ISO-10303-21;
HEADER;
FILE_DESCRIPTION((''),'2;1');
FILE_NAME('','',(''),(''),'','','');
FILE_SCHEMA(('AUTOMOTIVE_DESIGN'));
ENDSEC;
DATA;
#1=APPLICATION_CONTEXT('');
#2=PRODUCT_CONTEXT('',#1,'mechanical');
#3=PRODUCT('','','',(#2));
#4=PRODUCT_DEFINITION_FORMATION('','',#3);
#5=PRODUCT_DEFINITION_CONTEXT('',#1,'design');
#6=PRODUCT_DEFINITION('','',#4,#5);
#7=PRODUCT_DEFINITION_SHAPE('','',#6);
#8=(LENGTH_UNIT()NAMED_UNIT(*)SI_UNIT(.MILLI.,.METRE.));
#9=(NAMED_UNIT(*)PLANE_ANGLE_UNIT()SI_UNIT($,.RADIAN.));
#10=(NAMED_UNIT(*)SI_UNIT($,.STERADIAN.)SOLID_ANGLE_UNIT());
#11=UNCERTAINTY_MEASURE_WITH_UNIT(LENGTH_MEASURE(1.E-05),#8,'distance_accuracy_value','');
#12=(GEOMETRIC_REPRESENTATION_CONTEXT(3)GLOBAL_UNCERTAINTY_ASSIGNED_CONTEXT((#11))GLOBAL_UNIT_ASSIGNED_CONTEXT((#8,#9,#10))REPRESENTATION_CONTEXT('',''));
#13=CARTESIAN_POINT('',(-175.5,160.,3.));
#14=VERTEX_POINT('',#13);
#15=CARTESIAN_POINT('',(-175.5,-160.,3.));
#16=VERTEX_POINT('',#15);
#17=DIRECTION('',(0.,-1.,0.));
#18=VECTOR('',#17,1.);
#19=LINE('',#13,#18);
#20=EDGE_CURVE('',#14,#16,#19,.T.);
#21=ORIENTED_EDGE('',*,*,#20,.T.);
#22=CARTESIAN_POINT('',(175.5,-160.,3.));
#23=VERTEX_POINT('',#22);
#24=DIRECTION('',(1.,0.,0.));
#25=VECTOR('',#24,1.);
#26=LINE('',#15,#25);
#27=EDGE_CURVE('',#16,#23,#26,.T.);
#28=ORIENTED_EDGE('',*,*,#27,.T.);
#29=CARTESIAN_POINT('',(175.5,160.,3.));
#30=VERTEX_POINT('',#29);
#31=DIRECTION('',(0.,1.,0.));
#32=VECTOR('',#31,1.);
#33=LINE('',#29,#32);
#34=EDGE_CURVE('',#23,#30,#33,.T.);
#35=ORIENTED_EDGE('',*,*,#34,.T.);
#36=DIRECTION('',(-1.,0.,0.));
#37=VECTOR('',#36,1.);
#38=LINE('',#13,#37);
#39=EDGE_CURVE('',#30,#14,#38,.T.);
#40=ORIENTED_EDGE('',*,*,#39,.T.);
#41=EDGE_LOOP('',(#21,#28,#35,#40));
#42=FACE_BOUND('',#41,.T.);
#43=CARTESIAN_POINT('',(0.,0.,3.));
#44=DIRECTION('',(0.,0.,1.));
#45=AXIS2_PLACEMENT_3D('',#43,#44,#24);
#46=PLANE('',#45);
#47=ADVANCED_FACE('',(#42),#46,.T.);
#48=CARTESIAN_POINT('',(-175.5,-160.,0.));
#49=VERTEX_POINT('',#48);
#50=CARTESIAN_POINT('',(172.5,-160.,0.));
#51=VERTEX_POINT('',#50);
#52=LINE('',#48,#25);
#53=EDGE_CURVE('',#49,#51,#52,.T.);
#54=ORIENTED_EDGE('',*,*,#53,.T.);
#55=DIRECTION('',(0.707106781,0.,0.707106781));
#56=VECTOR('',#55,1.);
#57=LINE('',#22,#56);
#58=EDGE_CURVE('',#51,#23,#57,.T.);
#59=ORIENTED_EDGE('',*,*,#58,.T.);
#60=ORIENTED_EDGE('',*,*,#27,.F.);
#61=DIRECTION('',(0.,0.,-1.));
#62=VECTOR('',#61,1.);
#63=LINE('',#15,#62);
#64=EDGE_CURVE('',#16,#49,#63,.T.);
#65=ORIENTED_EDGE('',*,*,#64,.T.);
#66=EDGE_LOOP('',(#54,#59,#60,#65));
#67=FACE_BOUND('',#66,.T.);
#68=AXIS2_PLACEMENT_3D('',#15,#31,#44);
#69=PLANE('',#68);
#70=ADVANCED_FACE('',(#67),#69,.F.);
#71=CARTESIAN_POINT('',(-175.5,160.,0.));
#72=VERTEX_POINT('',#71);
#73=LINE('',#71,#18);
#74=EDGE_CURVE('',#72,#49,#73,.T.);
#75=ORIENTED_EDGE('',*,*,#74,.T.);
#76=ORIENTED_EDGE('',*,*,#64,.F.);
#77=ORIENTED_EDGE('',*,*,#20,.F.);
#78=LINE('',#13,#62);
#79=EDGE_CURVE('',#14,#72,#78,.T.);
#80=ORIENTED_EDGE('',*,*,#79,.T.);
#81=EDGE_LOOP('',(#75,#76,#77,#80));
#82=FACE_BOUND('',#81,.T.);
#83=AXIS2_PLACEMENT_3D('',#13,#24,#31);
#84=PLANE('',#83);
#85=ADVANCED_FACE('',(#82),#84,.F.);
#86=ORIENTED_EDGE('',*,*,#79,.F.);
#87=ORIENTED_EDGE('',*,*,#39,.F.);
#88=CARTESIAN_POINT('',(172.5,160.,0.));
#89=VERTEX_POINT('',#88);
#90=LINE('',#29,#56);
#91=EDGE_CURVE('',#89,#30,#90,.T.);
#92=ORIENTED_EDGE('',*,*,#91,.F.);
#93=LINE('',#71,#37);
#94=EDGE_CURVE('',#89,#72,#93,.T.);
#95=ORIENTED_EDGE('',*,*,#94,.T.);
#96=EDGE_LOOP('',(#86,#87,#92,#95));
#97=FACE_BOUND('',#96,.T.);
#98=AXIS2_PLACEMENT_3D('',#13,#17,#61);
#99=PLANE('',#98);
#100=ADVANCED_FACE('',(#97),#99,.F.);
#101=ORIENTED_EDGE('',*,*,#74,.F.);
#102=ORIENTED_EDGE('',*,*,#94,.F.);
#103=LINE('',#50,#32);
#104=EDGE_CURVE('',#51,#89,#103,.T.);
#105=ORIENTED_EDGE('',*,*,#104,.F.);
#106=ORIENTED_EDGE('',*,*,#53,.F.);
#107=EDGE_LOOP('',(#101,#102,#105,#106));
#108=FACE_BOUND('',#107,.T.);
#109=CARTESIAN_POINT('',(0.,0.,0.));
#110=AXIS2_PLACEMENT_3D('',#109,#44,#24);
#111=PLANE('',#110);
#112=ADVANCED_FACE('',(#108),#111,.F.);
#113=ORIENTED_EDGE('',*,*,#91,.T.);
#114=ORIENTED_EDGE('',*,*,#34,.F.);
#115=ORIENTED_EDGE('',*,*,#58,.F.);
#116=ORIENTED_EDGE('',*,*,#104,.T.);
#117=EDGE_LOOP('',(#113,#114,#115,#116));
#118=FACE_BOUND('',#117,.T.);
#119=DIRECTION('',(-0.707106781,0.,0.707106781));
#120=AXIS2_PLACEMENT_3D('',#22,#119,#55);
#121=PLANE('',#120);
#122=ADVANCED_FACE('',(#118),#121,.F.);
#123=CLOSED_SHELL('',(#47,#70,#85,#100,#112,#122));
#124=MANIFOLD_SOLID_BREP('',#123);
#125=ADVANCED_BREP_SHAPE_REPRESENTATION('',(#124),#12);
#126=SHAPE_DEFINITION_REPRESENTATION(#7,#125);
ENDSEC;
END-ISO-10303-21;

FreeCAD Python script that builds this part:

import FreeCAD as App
import Part
import Sketcher

V = App.Vector


def add_polygon(sketch, points):
    """Adds a closed chain of lines whose ends are joined by coincident constraints."""
    first, n = sketch.GeometryCount, len(points)
    for a, b in zip(points, points[1:] + points[:1]):
        sketch.addGeometry(Part.LineSegment(App.Vector(*a, 0), App.Vector(*b, 0)), False)
    for i in range(n):
        sketch.addConstraint(Sketcher.Constraint("Coincident", first + i, 2, first + (i + 1) % n, 1))

doc = App.newDocument("Part")
body = doc.addObject("PartDesign::Body", "Body")

# Sketch on XY plane
sketch1 = body.newObject("Sketcher::SketchObject", "Sketch")
sketch1.AttachmentSupport = (doc.getObject("XY_Plane"), [""])
sketch1.MapMode = "FlatFace"
add_polygon(sketch1, [(-176, 160), (-176, -160), (176, -160), (176, 160)])  # lines 0-3
sketch1.addConstraint([
    Sketcher.Constraint("Vertical", 0),
    Sketcher.Constraint("Horizontal", 1),
    Sketcher.Constraint("Vertical", 2),
    Sketcher.Constraint("Horizontal", 3),
    Sketcher.Constraint("Symmetric", 0, 2, 2, 2, -1, 1),
    Sketcher.Constraint("DistanceX", 1, 1, 1, 2, 351.0),
    Sketcher.Constraint("DistanceY", 0, 2, 0, 1, 320.0),
])
pad1 = body.newObject("PartDesign::Pad", "Pad")
pad1.Profile = sketch1
pad1.Length = 3

# Sketch on XZ plane
sketch2 = body.newObject("Sketcher::SketchObject", "Sketch001")
sketch2.AttachmentSupport = (doc.getObject("XZ_Plane"), [""])
sketch2.MapMode = "FlatFace"
sketch2.AttachmentOffset = App.Placement(V(0, 0, -160), App.Rotation())
add_polygon(sketch2, [(172.5, 0), (175.5, 3), (175.5, 0)])  # lines 0-2
sketch2.addConstraint([
    Sketcher.Constraint("Vertical", 1),
    Sketcher.Constraint("Horizontal", 2),
    Sketcher.Constraint("PointOnObject", 1, 2, -1),
    Sketcher.Constraint("Equal", 2, 1),
    Sketcher.Constraint("DistanceX", 2, 2, 2, 1, 3.0),
    Sketcher.Constraint("DistanceX", -1, 1, 0, 2, 175.5),
])
pocket1 = body.newObject("PartDesign::Pocket", "Pocket")
pocket1.Profile = sketch2
pocket1.Type = "ThroughAll"
pocket1.Reversed = True

doc.recompute()
